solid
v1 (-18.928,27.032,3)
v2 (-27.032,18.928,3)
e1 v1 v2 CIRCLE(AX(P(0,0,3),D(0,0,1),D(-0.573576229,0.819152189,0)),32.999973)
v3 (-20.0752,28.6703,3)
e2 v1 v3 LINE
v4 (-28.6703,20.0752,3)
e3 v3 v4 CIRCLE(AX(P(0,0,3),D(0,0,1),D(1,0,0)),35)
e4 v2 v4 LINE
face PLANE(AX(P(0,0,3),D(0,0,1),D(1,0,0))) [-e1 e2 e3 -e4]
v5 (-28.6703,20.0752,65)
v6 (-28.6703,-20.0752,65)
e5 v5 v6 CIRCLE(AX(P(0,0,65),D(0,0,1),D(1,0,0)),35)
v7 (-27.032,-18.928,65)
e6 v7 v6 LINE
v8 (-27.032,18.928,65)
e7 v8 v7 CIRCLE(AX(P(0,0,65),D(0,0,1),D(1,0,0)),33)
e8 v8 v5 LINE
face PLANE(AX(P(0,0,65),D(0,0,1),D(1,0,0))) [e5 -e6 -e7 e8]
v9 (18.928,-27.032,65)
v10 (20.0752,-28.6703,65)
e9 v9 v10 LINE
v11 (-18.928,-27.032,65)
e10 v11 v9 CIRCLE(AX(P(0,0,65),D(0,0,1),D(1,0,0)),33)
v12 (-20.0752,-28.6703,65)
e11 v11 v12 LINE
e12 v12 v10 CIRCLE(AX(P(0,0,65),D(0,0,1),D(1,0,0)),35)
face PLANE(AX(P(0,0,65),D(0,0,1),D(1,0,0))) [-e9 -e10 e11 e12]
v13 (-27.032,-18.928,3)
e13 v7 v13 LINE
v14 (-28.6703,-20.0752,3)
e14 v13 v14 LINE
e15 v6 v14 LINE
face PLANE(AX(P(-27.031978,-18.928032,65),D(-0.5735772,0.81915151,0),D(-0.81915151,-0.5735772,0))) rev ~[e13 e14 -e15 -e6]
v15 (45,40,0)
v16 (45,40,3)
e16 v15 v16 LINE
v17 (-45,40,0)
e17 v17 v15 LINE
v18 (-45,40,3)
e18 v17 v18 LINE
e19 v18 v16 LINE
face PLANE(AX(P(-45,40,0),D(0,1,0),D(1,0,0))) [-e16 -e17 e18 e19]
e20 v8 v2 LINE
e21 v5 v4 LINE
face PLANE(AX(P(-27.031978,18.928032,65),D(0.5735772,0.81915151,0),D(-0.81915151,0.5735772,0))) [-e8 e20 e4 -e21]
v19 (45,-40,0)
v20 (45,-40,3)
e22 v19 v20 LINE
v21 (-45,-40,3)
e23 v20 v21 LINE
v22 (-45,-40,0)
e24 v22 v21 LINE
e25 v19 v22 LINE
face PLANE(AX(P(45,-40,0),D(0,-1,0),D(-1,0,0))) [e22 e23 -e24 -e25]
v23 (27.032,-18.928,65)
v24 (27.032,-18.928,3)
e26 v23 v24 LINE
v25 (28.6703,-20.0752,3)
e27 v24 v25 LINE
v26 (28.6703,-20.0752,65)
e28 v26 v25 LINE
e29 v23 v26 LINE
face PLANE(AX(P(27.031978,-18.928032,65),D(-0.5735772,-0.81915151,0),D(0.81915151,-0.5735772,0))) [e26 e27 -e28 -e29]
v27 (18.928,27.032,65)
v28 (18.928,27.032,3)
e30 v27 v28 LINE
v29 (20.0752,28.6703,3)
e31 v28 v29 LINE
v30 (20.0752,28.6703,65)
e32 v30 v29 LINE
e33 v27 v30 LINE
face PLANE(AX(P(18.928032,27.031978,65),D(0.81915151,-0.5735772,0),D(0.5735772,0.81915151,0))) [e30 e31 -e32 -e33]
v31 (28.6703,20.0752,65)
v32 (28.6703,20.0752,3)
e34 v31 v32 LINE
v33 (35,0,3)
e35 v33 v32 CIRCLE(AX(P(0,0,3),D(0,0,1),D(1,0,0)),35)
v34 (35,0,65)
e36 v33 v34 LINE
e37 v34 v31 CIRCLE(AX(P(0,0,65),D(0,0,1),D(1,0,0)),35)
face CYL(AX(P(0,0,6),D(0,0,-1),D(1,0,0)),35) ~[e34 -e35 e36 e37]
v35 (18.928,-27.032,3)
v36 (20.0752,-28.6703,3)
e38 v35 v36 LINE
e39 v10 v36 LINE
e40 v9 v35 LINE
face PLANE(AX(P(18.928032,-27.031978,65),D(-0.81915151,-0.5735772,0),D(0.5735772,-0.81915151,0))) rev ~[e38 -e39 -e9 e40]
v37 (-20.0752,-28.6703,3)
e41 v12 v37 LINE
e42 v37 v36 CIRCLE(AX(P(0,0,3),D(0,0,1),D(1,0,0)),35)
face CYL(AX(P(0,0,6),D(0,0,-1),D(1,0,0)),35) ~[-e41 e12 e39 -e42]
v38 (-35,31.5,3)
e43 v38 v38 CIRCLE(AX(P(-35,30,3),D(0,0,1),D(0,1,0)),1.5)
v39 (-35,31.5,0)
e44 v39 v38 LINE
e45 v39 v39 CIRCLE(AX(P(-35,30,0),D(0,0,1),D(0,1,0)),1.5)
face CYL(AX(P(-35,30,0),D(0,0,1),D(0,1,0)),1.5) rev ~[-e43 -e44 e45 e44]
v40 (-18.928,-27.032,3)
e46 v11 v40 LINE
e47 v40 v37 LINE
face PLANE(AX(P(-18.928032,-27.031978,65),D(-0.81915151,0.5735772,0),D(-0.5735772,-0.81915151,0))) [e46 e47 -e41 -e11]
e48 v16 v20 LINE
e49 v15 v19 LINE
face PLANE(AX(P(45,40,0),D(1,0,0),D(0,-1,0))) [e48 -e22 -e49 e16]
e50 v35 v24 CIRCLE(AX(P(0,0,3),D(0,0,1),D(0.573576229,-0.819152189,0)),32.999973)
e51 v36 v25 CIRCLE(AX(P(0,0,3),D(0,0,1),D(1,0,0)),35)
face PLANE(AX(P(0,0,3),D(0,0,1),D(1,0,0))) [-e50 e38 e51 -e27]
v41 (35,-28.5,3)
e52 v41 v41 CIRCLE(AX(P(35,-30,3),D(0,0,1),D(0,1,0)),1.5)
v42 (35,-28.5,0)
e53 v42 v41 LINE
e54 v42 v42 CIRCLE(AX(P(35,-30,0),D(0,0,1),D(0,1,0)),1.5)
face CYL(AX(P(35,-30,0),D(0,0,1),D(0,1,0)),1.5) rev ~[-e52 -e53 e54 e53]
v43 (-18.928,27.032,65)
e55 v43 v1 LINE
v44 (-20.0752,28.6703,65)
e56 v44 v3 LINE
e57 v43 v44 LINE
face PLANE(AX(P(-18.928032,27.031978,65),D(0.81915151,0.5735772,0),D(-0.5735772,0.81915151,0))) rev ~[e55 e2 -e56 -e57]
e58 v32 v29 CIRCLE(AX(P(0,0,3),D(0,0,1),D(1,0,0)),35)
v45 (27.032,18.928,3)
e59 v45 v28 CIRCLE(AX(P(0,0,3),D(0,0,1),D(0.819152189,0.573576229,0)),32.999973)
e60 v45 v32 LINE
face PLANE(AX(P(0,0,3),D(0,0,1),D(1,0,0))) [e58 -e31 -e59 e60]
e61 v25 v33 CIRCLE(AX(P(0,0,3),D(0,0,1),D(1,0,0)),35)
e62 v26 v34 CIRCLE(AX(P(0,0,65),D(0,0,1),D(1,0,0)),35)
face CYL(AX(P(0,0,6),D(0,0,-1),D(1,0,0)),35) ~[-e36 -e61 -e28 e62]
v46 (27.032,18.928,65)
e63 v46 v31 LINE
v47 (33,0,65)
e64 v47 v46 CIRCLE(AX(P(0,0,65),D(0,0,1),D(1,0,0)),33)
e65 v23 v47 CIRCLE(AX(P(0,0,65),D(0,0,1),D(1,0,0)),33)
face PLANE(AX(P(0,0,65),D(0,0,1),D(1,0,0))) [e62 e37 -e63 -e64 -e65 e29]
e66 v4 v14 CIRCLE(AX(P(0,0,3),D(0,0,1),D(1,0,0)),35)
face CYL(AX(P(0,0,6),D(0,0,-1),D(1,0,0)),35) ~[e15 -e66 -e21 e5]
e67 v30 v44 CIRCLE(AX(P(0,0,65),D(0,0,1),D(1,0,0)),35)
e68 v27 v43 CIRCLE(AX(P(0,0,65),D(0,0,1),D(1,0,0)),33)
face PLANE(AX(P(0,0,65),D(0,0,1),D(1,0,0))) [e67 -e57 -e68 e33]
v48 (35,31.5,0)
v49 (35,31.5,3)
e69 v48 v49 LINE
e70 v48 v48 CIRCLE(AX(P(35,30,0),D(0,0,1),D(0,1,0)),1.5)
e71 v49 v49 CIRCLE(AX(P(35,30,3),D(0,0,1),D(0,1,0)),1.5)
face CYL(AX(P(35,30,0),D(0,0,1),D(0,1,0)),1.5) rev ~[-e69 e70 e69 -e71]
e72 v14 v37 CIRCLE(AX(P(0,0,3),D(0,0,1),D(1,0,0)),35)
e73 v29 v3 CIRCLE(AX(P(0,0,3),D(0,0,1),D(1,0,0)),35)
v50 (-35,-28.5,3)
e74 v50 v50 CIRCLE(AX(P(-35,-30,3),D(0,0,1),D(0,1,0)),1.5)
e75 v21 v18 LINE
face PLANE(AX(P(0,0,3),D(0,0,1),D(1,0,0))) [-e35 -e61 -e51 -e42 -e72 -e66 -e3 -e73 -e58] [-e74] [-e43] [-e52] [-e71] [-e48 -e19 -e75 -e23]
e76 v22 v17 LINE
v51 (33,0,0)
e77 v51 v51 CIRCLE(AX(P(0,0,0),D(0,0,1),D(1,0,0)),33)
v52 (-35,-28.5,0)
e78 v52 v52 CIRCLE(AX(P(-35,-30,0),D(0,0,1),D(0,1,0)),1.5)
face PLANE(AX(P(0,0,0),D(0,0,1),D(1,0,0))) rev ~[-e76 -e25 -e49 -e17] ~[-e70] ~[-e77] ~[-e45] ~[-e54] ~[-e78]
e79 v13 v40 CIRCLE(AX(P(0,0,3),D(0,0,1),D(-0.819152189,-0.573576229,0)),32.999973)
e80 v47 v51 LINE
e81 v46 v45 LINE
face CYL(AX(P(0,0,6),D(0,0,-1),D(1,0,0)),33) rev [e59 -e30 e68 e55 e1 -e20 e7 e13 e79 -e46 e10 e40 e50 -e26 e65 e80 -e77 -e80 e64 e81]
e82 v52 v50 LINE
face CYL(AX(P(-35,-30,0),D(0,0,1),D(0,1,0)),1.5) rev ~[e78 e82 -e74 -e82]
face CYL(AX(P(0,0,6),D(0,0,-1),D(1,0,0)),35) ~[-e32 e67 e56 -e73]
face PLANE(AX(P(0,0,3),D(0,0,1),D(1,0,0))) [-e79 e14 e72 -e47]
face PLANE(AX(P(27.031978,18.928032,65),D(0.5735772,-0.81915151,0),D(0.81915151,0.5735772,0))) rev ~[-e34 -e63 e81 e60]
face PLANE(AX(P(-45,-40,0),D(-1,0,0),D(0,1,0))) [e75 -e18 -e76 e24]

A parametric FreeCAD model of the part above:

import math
import FreeCAD as App
import Part
import Sketcher
from FreeCAD import Vector
Q = App.Units.Quantity


def add_polygon(sketch, points):
    """Adds a closed chain of lines whose ends are joined by coincident constraints."""
    first, n = sketch.GeometryCount, len(points)
    for a, b in zip(points, points[1:] + points[:1]):
        sketch.addGeometry(Part.LineSegment(App.Vector(*a, 0), App.Vector(*b, 0)), False)
    for i in range(n):
        sketch.addConstraint(Sketcher.Constraint("Coincident", first + i, 2, first + (i + 1) % n, 1))

doc = App.newDocument("Part")
body = doc.addObject("PartDesign::Body", "Body")

sketch1 = body.newObject("Sketcher::SketchObject", "Sketch")
sketch1.AttachmentSupport = (doc.getObject("XY_Plane"), [""])
sketch1.MapMode = "FlatFace"
add_polygon(sketch1, [(45, 40), (-45, 40), (-45, -40), (45, -40)])
sketch1.addGeometry(Part.Circle(Vector(0, 0, 0), Vector(0, 0, 1), 35), False)
sketch1.addConstraint(Sketcher.Constraint("Horizontal", 0))
sketch1.addConstraint(Sketcher.Constraint("Vertical", 1))
sketch1.addConstraint(Sketcher.Constraint("Horizontal", 2))
sketch1.addConstraint(Sketcher.Constraint("Vertical", 3))
sketch1.addConstraint(Sketcher.Constraint("Coincident", 4, 3, -1, 1))
sketch1.addConstraint(Sketcher.Constraint("Symmetric", 0, 2, 2, 2, -1, 1))
sketch1.addConstraint(Sketcher.Constraint("Diameter", 4, Q("70 mm")))
sketch1.addConstraint(Sketcher.Constraint("DistanceX", 0, 2, 0, 1, Q("90 mm")))
sketch1.addConstraint(Sketcher.Constraint("DistanceY", 1, 2, 1, 1, Q("80 mm")))
pad1 = body.newObject("PartDesign::Pad", "Pad")
pad1.Profile = sketch1
pad1.Length = 3

sketch2 = body.newObject("Sketcher::SketchObject", "Sketch001")
sketch2.AttachmentSupport = (doc.getObject("XY_Plane"), [""])
sketch2.MapMode = "FlatFace"
sketch2.AttachmentOffset = App.Placement(Vector(0, 0, 3), App.Rotation())
sketch2.addGeometry(Part.Circle(Vector(0, 0, 0), Vector(0, 0, 1), 35), False)
sketch2.addGeometry(Part.Circle(Vector(0, 0, 0), Vector(0, 0, 1), 33), False)
sketch2.addConstraint(Sketcher.Constraint("Coincident", 0, 3, -1, 1))
sketch2.addConstraint(Sketcher.Constraint("Coincident", 1, 3, -1, 1))
sketch2.addConstraint(Sketcher.Constraint("Diameter", 1, Q("66 mm")))
sketch2.addConstraint(Sketcher.Constraint("Diameter", 0, Q("70 mm")))
pad2 = body.newObject("PartDesign::Pad", "Pad001")
pad2.Profile = sketch2
pad2.Type = "TwoLengths"
pad2.Length = 3
pad2.Length2 = 3

sketch3 = body.newObject("Sketcher::SketchObject", "Sketch002")
sketch3.AttachmentSupport = (doc.getObject("XY_Plane"), [""])
sketch3.MapMode = "FlatFace"
sketch3.AttachmentOffset = App.Placement(Vector(0, 0, 6), App.Rotation())
sketch3.addGeometry(Part.Circle(Vector(0, 0, 0), Vector(0, 0, 1), 35), False)
sketch3.addGeometry(Part.Circle(Vector(0, 0, 0), Vector(0, 0, 1), 33), False)
sketch3.addConstraint(Sketcher.Constraint("Coincident", 0, 3, -1, 1))
sketch3.addConstraint(Sketcher.Constraint("Coincident", 1, 3, -1, 1))
sketch3.addConstraint(Sketcher.Constraint("Diameter", 0, Q("70 mm")))
sketch3.addConstraint(Sketcher.Constraint("Diameter", 1, Q("66 mm")))
pad3 = body.newObject("PartDesign::Pad", "Pad002")
pad3.Profile = sketch3
pad3.Length = 59

sketch4 = body.newObject("Sketcher::SketchObject", "Sketch003")
sketch4.AttachmentSupport = (doc.getObject("XY_Plane"), [""])
sketch4.MapMode = "FlatFace"
sketch4.addGeometry(Part.Circle(Vector(35, 30, 0), Vector(0, 0, 1), 1.5), False)
sketch4.addGeometry(Part.Circle(Vector(-35, 30, 0), Vector(0, 0, 1), 1.5), False)
sketch4.addGeometry(Part.Circle(Vector(-35, -30, 0), Vector(0, 0, 1), 1.5), False)
sketch4.addGeometry(Part.Circle(Vector(35, -30, 0), Vector(0, 0, 1), 1.5), False)
sketch4.addConstraint(Sketcher.Constraint("Equal", 0, 1))
sketch4.addConstraint(Sketcher.Constraint("Equal", 1, 2))
sketch4.addConstraint(Sketcher.Constraint("Equal", 2, 3))
sketch4.addConstraint(Sketcher.Constraint("Symmetric", 0, 3, 2, 3, -1, 1))
sketch4.addConstraint(Sketcher.Constraint("Symmetric", 1, 3, 3, 3, -1, 1))
sketch4.addConstraint(Sketcher.Constraint("Symmetric", 0, 3, 1, 3, -2))
sketch4.addConstraint(Sketcher.Constraint("Diameter", 0, Q("3 mm")))
sketch4.addConstraint(Sketcher.Constraint("DistanceX", -1, 1, 0, 3, Q("35 mm")))
sketch4.addConstraint(Sketcher.Constraint("DistanceY", -1, 1, 0, 3, Q("30 mm")))
doc.recompute()
hole = body.newObject("PartDesign::Hole", "Hole")
hole.Profile = sketch4
hole.ThreadType = "None"
hole.Diameter = 3
hole.DepthType = "Dimension"
hole.Depth = 8
hole.DrillPoint = "Angled"
hole.DrillPointAngle = 118
hole.Reversed = True

sketch5 = body.newObject("Sketcher::SketchObject", "Sketch004")
sketch5.AttachmentSupport = (doc.getObject("XY_Plane"), [""])
sketch5.MapMode = "FlatFace"
sketch5.AttachmentOffset = App.Placement(Vector(0, 0, 65), App.Rotation())
sketch5.addGeometry(Part.ArcOfCircle(Part.Circle(Vector(0, 0, 0), Vector(0, 0, 1), 33), math.radians(35), math.radians(55)), False)
sketch5.addGeometry(Part.LineSegment(Vector(27, 18.9, 0), Vector(28.7, 20.1, 0)), False)
sketch5.addGeometry(Part.ArcOfCircle(Part.Circle(Vector(0, 0, 0), Vector(0, 0, 1), 35), math.radians(35), math.radians(55)), False)
sketch5.addGeometry(Part.LineSegment(Vector(20.1, 28.7, 0), Vector(18.9, 27, 0)), False)
sketch5.addGeometry(Part.LineSegment(Vector(28.7, -20.1, 0), Vector(27, -18.9, 0)), False)
sketch5.addGeometry(Part.ArcOfCircle(Part.Circle(Vector(0, 0, 0), Vector(0, 0, 1), 33), math.radians(-55), math.radians(-35)), False)
sketch5.addGeometry(Part.LineSegment(Vector(18.9, -27, 0), Vector(20.1, -28.7, 0)), False)
sketch5.addGeometry(Part.ArcOfCircle(Part.Circle(Vector(0, 0, 0), Vector(0, 0, 1), 35), math.radians(-55), math.radians(-35)), False)
sketch5.addGeometry(Part.ArcOfCircle(Part.Circle(Vector(0, 0, 0), Vector(0, 0, 1), 33), math.radians(125), math.radians(145)), False)
sketch5.addGeometry(Part.LineSegment(Vector(-18.9, 27, 0), Vector(-20.1, 28.7, 0)), False)
sketch5.addGeometry(Part.ArcOfCircle(Part.Circle(Vector(0, 0, 0), Vector(0, 0, 1), 35), math.radians(125), math.radians(145)), False)
sketch5.addGeometry(Part.LineSegment(Vector(-28.7, 20.1, 0), Vector(-27, 18.9, 0)), False)
sketch5.addGeometry(Part.LineSegment(Vector(-20.1, -28.7, 0), Vector(-18.9, -27, 0)), False)
sketch5.addGeometry(Part.ArcOfCircle(Part.Circle(Vector(0, 0, 0), Vector(0, 0, 1), 33), math.radians(-145), math.radians(-125)), False)
sketch5.addGeometry(Part.LineSegment(Vector(-27, -18.9, 0), Vector(-28.7, -20.1, 0)), False)
sketch5.addGeometry(Part.ArcOfCircle(Part.Circle(Vector(0, 0, 0), Vector(0, 0, 1), 35), math.radians(-145), math.radians(-125)), False)
sketch5.addConstraint(Sketcher.Constraint("Coincident", 0, 1, 1, 1))
sketch5.addConstraint(Sketcher.Constraint("Coincident", 1, 2, 2, 1))
sketch5.addConstraint(Sketcher.Constraint("Coincident", 2, 2, 3, 1))
sketch5.addConstraint(Sketcher.Constraint("Coincident", 3, 2, 0, 2))
sketch5.addConstraint(Sketcher.Constraint("Coincident", 4, 2, 5, 2))
sketch5.addConstraint(Sketcher.Constraint("Coincident", 5, 1, 6, 1))
sketch5.addConstraint(Sketcher.Constraint("Coincident", 6, 2, 7, 1))
sketch5.addConstraint(Sketcher.Constraint("Coincident", 7, 2, 4, 1))
sketch5.addConstraint(Sketcher.Constraint("Coincident", 8, 1, 9, 1))
sketch5.addConstraint(Sketcher.Constraint("Coincident", 9, 2, 10, 1))
sketch5.addConstraint(Sketcher.Constraint("Coincident", 10, 2, 11, 1))
sketch5.addConstraint(Sketcher.Constraint("Coincident", 11, 2, 8, 2))
sketch5.addConstraint(Sketcher.Constraint("Coincident", 12, 2, 13, 2))
sketch5.addConstraint(Sketcher.Constraint("Coincident", 13, 1, 14, 1))
sketch5.addConstraint(Sketcher.Constraint("Coincident", 14, 2, 15, 1))
sketch5.addConstraint(Sketcher.Constraint("Coincident", 15, 2, 12, 1))
sketch5.addConstraint(Sketcher.Constraint("Coincident", 0, 3, -1, 1))
sketch5.addConstraint(Sketcher.Constraint("Coincident", 2, 3, -1, 1))
sketch5.addConstraint(Sketcher.Constraint("Coincident", 5, 3, -1, 1))
sketch5.addConstraint(Sketcher.Constraint("Coincident", 7, 3, -1, 1))
sketch5.addConstraint(Sketcher.Constraint("Coincident", 8, 3, -1, 1))
sketch5.addConstraint(Sketcher.Constraint("Coincident", 10, 3, -1, 1))
sketch5.addConstraint(Sketcher.Constraint("Coincident", 13, 3, -1, 1))
sketch5.addConstraint(Sketcher.Constraint("Coincident", 15, 3, -1, 1))
sketch5.addConstraint(Sketcher.Constraint("Equal", 0, 5))
sketch5.addConstraint(Sketcher.Constraint("Equal", 2, 7))
sketch5.addConstraint(Sketcher.Constraint("Equal", 5, 8))
sketch5.addConstraint(Sketcher.Constraint("Equal", 7, 10))
sketch5.addConstraint(Sketcher.Constraint("Equal", 8, 13))
sketch5.addConstraint(Sketcher.Constraint("Equal", 10, 15))
sketch5.addConstraint(Sketcher.Constraint("Perpendicular", 3, 4))
sketch5.addConstraint(Sketcher.Constraint("Perpendicular", 1, 6))
sketch5.addConstraint(Sketcher.Constraint("Parallel", 6, 9))
sketch5.addConstraint(Sketcher.Constraint("Parallel", 4, 11))
sketch5.addConstraint(Sketcher.Constraint("Perpendicular", 11, 12))
sketch5.addConstraint(Sketcher.Constraint("Perpendicular", 9, 14))
sketch5.addConstraint(Sketcher.Constraint("Horizontal", 3, 2, 8, 1))
sketch5.addConstraint(Sketcher.Constraint("Horizontal", 2, 2, 9, 2))
sketch5.addConstraint(Sketcher.Constraint("Horizontal", 1, 2, 10, 2))
sketch5.addConstraint(Sketcher.Constraint("Horizontal", 5, 1, 12, 2))
sketch5.addConstraint(Sketcher.Constraint("Horizontal", 4, 2, 13, 1))
sketch5.addConstraint(Sketcher.Constraint("Vertical", 0, 1, 4, 2))
sketch5.addConstraint(Sketcher.Constraint("Vertical", 3, 2, 5, 1))
sketch5.addConstraint(Sketcher.Constraint("Radius", 2, Q("35 mm")))
sketch5.addConstraint(Sketcher.Constraint("Angle", 1, Q("35 deg")))
sketch5.addConstraint(Sketcher.Constraint("Radius", 0, Q("33 mm")))
sketch5.addConstraint(Sketcher.Constraint("DistanceX", -1, 1, 0, 1, Q("27.032 mm")))
sketch5.addConstraint(Sketcher.Constraint("DistanceX", -1, 1, 3, 2, Q("18.928 mm")))
pocket1 = body.newObject("PartDesign::Pocket", "Pocket")
pocket1.Profile = sketch5
pocket1.Length = 62

doc.recompute()
